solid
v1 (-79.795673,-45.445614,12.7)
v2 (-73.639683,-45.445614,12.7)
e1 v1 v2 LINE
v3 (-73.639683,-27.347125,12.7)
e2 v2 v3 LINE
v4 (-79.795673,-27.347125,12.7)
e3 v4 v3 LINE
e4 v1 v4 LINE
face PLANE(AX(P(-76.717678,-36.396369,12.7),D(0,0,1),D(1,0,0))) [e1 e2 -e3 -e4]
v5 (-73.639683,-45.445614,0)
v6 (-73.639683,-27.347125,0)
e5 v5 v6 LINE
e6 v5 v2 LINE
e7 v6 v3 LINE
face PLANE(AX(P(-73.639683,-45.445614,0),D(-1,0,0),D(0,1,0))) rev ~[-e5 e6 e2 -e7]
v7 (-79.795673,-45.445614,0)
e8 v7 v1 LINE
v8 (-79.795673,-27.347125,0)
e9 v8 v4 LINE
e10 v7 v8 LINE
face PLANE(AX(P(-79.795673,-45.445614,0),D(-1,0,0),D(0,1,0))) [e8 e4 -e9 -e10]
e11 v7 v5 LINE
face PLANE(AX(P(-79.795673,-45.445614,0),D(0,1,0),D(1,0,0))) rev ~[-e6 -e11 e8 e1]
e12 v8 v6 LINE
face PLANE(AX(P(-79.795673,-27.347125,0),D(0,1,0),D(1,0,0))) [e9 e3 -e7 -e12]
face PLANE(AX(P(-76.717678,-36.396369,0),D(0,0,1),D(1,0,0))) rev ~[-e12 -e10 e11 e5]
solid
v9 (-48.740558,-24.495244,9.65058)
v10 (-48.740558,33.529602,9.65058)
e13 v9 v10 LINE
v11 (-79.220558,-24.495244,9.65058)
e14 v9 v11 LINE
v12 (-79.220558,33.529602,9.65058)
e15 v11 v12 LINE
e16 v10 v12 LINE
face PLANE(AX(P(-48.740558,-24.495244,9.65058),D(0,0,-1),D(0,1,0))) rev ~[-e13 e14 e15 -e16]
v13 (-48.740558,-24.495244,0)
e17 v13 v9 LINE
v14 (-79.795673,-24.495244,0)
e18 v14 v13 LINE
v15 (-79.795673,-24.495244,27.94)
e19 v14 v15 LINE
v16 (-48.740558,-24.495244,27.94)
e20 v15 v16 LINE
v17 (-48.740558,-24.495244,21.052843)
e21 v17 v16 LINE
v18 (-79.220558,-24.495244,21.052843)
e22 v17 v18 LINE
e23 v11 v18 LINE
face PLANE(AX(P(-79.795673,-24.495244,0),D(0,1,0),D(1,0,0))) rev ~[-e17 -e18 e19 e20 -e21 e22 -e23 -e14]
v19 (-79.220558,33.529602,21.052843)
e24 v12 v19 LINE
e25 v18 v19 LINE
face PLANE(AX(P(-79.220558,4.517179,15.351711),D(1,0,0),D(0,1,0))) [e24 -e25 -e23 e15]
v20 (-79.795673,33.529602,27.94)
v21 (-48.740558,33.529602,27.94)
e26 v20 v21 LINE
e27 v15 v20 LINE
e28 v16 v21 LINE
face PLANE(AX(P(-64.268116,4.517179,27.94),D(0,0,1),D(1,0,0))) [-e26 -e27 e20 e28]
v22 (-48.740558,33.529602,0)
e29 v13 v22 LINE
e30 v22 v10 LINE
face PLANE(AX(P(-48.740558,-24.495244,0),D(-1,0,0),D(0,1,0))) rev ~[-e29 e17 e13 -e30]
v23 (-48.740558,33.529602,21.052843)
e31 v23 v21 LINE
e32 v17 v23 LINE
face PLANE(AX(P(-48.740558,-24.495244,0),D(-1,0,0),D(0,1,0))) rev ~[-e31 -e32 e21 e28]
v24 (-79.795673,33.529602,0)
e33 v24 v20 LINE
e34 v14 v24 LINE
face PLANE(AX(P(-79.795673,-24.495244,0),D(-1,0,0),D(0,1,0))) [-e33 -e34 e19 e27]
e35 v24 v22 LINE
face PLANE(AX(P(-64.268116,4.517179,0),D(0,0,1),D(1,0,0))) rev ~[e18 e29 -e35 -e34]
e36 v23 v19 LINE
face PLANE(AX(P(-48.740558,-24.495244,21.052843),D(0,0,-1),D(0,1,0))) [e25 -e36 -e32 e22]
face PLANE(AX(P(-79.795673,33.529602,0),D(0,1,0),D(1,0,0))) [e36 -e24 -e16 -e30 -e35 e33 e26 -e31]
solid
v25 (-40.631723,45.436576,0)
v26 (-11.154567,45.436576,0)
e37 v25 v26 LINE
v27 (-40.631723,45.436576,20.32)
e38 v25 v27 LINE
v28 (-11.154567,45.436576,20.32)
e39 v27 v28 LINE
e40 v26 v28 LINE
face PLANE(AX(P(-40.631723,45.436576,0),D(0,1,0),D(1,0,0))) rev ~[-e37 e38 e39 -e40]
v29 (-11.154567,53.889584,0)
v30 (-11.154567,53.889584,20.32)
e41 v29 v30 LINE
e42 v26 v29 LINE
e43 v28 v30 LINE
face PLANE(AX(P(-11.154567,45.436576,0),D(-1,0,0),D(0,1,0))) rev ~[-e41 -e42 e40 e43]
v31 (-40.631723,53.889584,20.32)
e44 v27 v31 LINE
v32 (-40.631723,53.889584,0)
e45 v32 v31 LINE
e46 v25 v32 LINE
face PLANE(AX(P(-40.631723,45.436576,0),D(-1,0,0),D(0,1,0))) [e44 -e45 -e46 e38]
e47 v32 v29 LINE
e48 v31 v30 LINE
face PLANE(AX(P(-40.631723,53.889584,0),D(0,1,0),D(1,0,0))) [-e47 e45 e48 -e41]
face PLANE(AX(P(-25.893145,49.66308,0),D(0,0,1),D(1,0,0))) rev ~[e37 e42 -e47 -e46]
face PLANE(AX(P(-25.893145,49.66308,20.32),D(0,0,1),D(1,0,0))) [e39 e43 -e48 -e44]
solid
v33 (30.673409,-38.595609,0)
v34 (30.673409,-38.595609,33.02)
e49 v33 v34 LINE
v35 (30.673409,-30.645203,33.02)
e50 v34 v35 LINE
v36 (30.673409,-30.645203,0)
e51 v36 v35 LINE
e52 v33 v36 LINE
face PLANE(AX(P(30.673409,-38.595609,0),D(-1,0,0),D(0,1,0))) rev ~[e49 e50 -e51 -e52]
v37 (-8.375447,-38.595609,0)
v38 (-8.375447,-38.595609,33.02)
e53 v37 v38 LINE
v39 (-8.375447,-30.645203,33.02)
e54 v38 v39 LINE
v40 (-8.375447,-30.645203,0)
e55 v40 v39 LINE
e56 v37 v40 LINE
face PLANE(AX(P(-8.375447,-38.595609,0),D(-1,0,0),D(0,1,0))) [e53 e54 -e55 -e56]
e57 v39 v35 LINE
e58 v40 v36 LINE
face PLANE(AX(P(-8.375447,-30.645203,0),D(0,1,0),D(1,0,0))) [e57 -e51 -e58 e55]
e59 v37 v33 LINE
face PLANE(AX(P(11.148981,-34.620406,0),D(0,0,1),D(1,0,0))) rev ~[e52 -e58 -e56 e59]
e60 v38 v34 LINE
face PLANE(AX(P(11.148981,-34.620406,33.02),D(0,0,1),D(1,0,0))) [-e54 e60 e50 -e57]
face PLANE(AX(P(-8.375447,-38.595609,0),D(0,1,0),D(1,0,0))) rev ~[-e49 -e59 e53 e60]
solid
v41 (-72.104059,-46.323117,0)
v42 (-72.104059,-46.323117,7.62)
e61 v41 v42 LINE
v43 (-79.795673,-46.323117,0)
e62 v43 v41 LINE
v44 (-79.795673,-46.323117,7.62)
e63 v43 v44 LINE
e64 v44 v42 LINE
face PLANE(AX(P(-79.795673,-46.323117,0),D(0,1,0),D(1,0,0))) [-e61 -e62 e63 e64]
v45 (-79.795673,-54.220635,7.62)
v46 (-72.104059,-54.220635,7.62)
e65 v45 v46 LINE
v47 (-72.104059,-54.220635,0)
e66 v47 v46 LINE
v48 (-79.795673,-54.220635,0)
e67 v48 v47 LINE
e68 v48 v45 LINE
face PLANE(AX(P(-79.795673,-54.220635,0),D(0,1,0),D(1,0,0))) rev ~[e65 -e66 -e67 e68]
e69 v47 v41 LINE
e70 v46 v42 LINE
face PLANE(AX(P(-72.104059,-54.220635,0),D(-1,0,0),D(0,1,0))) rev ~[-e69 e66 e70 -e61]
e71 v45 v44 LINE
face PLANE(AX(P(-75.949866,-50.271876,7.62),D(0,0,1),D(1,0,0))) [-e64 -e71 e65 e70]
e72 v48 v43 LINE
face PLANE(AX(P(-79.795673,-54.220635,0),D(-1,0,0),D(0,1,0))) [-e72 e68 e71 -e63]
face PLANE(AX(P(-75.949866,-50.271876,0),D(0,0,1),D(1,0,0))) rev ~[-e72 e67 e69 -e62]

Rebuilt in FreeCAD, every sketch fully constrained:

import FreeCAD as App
import Part
import Sketcher
Q = App.Units.Quantity

doc = App.newDocument("Part")
body = doc.addObject("PartDesign::Body", "Body")

# Sketch on XY plane
sketch1 = body.newObject("Sketcher::SketchObject", "Sketch")
sketch1.AttachmentSupport = (doc.getObject("XY_Plane"), [""])
sketch1.MapMode = "FlatFace"
sketch1.addGeometry([
    Part.LineSegment(App.Vector(-80, 34, 0), App.Vector(-80, -24, 0)),
    Part.LineSegment(App.Vector(-80, -24, 0), App.Vector(-49, -24, 0)),
    Part.LineSegment(App.Vector(-49, -24, 0), App.Vector(-49, 34, 0)),
    Part.LineSegment(App.Vector(-49, 34, 0), App.Vector(-80, 34, 0)),
], False)
sketch1.addConstraint([
    Sketcher.Constraint("Coincident", 0, 2, 1, 1),
    Sketcher.Constraint("Coincident", 1, 2, 2, 1),
    Sketcher.Constraint("Coincident", 2, 2, 3, 1),
    Sketcher.Constraint("Coincident", 3, 2, 0, 1),
    Sketcher.Constraint("Vertical", 0),
    Sketcher.Constraint("Horizontal", 1),
    Sketcher.Constraint("Vertical", 2),
    Sketcher.Constraint("Horizontal", 3),
    Sketcher.Constraint("DistanceY", -1, 1, 2, 2, 33.529602),
    Sketcher.Constraint("DistanceX", 1, 1, 1, 2, 31.055115),
    Sketcher.Constraint("DistanceY", 0, 2, 0, 1, 58.024846),
    Sketcher.Constraint("DistanceX", 1, 2, -1, 1, 48.740558),
])
pad1 = body.newObject("PartDesign::Pad", "Pad")
pad1.Profile = sketch1
pad1.Length = Q("1.1 in")

# Sketch on YZ plane
sketch2 = body.newObject("Sketcher::SketchObject", "Sketch001")
sketch2.AttachmentSupport = (doc.getObject("YZ_Plane"), [""])
sketch2.MapMode = "FlatFace"
sketch2.AttachmentOffset = App.Placement(App.Vector(0, 0, -48.740558), App.Rotation())
sketch2.addGeometry([
    Part.LineSegment(App.Vector(-24, 21, 0), App.Vector(-24, 10, 0)),
    Part.LineSegment(App.Vector(-24, 10, 0), App.Vector(34, 10, 0)),
    Part.LineSegment(App.Vector(34, 10, 0), App.Vector(34, 21, 0)),
    Part.LineSegment(App.Vector(34, 21, 0), App.Vector(-24, 21, 0)),
], False)
sketch2.addConstraint([
    Sketcher.Constraint("Coincident", 0, 2, 1, 1),
    Sketcher.Constraint("Coincident", 1, 2, 2, 1),
    Sketcher.Constraint("Coincident", 2, 2, 3, 1),
    Sketcher.Constraint("Coincident", 3, 2, 0, 1),
    Sketcher.Constraint("Vertical", 0),
    Sketcher.Constraint("Horizontal", 1),
    Sketcher.Constraint("Vertical", 2),
    Sketcher.Constraint("Horizontal", 3),
    Sketcher.Constraint("DistanceX", -1, 1, 1, 2, 33.529602),
    Sketcher.Constraint("DistanceX", 1, 1, 1, 2, 58.024846),
    Sketcher.Constraint("DistanceY", 0, 2, 0, 1, 11.402263),
    Sketcher.Constraint("DistanceY", -1, 1, 0, 2, 9.65058),
])
pocket1 = body.newObject("PartDesign::Pocket", "Pocket")
pocket1.Profile = sketch2
pocket1.Length = Q("1.2 in")
body2 = doc.addObject("PartDesign::Body", "Body001")

# Sketch on XY plane
sketch3 = body2.newObject("Sketcher::SketchObject", "Sketch002")
sketch3.AttachmentSupport = (doc.getObject("XY_Plane001"), [""])
sketch3.MapMode = "FlatFace"
sketch3.addGeometry([
    Part.LineSegment(App.Vector(-80, -27, 0), App.Vector(-80, -45, 0)),
    Part.LineSegment(App.Vector(-80, -45, 0), App.Vector(-74, -45, 0)),
    Part.LineSegment(App.Vector(-74, -45, 0), App.Vector(-74, -27, 0)),
    Part.LineSegment(App.Vector(-74, -27, 0), App.Vector(-80, -27, 0)),
], False)
sketch3.addConstraint([
    Sketcher.Constraint("Coincident", 0, 2, 1, 1),
    Sketcher.Constraint("Coincident", 1, 2, 2, 1),
    Sketcher.Constraint("Coincident", 2, 2, 3, 1),
    Sketcher.Constraint("Coincident", 3, 2, 0, 1),
    Sketcher.Constraint("Vertical", 0),
    Sketcher.Constraint("Horizontal", 1),
    Sketcher.Constraint("Vertical", 2),
    Sketcher.Constraint("Horizontal", 3),
    Sketcher.Constraint("DistanceX", 1, 2, -1, 1, Q("2.8992001 in")),
    Sketcher.Constraint("DistanceX", 1, 1, 1, 2, 6.15599),
    Sketcher.Constraint("DistanceY", 0, 2, 0, 1, 18.098488),
    Sketcher.Constraint("DistanceY", 0, 2, -1, 1, 45.445614),
])
pad2 = body2.newObject("PartDesign::Pad", "Pad001")
pad2.Profile = sketch3
pad2.Length = Q("0.5 in")
body3 = doc.addObject("PartDesign::Body", "Body002")

# Sketch on XY plane
sketch4 = body3.newObject("Sketcher::SketchObject", "Sketch003")
sketch4.AttachmentSupport = (doc.getObject("XY_Plane002"), [""])
sketch4.MapMode = "FlatFace"
sketch4.addGeometry([
    Part.LineSegment(App.Vector(-80, -46, 0), App.Vector(-80, -54, 0)),
    Part.LineSegment(App.Vector(-80, -54, 0), App.Vector(-72, -54, 0)),
    Part.LineSegment(App.Vector(-72, -54, 0), App.Vector(-72, -46, 0)),
    Part.LineSegment(App.Vector(-72, -46, 0), App.Vector(-80, -46, 0)),
], False)
sketch4.addConstraint([
    Sketcher.Constraint("Coincident", 0, 2, 1, 1),
    Sketcher.Constraint("Coincident", 1, 2, 2, 1),
    Sketcher.Constraint("Coincident", 2, 2, 3, 1),
    Sketcher.Constraint("Coincident", 3, 2, 0, 1),
    Sketcher.Constraint("Vertical", 0),
    Sketcher.Constraint("Horizontal", 1),
    Sketcher.Constraint("Vertical", 2),
    Sketcher.Constraint("Horizontal", 3),
    Sketcher.Constraint("DistanceY", 0, 2, 0, 1, 7.897519),
    Sketcher.Constraint("DistanceX", 1, 1, 1, 2, 7.691614),
    Sketcher.Constraint("DistanceX", 1, 2, -1, 1, 72.104059),
    Sketcher.Constraint("DistanceY", 0, 2, -1, 1, 54.220635),
])
pad3 = body3.newObject("PartDesign::Pad", "Pad002")
pad3.Profile = sketch4
pad3.Length = Q("0.3 in")
body4 = doc.addObject("PartDesign::Body", "Body003")

# Sketch on XY plane
sketch5 = body4.newObject("Sketcher::SketchObject", "Sketch004")
sketch5.AttachmentSupport = (doc.getObject("XY_Plane003"), [""])
sketch5.MapMode = "FlatFace"
sketch5.addGeometry([
    Part.LineSegment(App.Vector(-8, -31, 0), App.Vector(-8, -39, 0)),
    Part.LineSegment(App.Vector(-8, -39, 0), App.Vector(31, -39, 0)),
    Part.LineSegment(App.Vector(31, -39, 0), App.Vector(31, -31, 0)),
    Part.LineSegment(App.Vector(31, -31, 0), App.Vector(-8, -31, 0)),
], False)
sketch5.addConstraint([
    Sketcher.Constraint("Coincident", 0, 2, 1, 1),
    Sketcher.Constraint("Coincident", 1, 2, 2, 1),
    Sketcher.Constraint("Coincident", 2, 2, 3, 1),
    Sketcher.Constraint("Coincident", 3, 2, 0, 1),
    Sketcher.Constraint("Vertical", 0),
    Sketcher.Constraint("Horizontal", 1),
    Sketcher.Constraint("Vertical", 2),
    Sketcher.Constraint("Horizontal", 3),
    Sketcher.Constraint("DistanceX", 1, 1, 1, 2, 39.048856),
    Sketcher.Constraint("DistanceY", 0, 2, 0, 1, 7.950407),
    Sketcher.Constraint("DistanceY", 0, 2, -1, 1, 38.595609),
    Sketcher.Constraint("DistanceX", -1, 1, 1, 2, 30.673409),
])
pad4 = body4.newObject("PartDesign::Pad", "Pad003")
pad4.Profile = sketch5
pad4.Length = Q("1.3 in")
body5 = doc.addObject("PartDesign::Body", "Body004")

# Sketch on XY plane
sketch6 = body5.newObject("Sketcher::SketchObject", "Sketch005")
sketch6.AttachmentSupport = (doc.getObject("XY_Plane004"), [""])
sketch6.MapMode = "FlatFace"
sketch6.addGeometry([
    Part.LineSegment(App.Vector(-41, 54, 0), App.Vector(-41, 45, 0)),
    Part.LineSegment(App.Vector(-41, 45, 0), App.Vector(-11, 45, 0)),
    Part.LineSegment(App.Vector(-11, 45, 0), App.Vector(-11, 54, 0)),
    Part.LineSegment(App.Vector(-11, 54, 0), App.Vector(-41, 54, 0)),
], False)
sketch6.addConstraint([
    Sketcher.Constraint("Coincident", 0, 2, 1, 1),
    Sketcher.Constraint("Coincident", 1, 2, 2, 1),
    Sketcher.Constraint("Coincident", 2, 2, 3, 1),
    Sketcher.Constraint("Coincident", 3, 2, 0, 1),
    Sketcher.Constraint("Vertical", 0),
    Sketcher.Constraint("Horizontal", 1),
    Sketcher.Constraint("Vertical", 2),
    Sketcher.Constraint("Horizontal", 3),
    Sketcher.Constraint("DistanceX", 1, 1, 1, 2, 29.477156),
    Sketcher.Constraint("DistanceY", 0, 2, 0, 1, 8.453008),
    Sketcher.Constraint("DistanceX", 0, 2, -1, 1, 40.631723),
    Sketcher.Constraint("DistanceY", -1, 1, 0, 2, 45.436576),
])
pad5 = body5.newObject("PartDesign::Pad", "Pad004")
pad5.Profile = sketch6
pad5.Length = Q("0.8 in")

doc.recompute()
